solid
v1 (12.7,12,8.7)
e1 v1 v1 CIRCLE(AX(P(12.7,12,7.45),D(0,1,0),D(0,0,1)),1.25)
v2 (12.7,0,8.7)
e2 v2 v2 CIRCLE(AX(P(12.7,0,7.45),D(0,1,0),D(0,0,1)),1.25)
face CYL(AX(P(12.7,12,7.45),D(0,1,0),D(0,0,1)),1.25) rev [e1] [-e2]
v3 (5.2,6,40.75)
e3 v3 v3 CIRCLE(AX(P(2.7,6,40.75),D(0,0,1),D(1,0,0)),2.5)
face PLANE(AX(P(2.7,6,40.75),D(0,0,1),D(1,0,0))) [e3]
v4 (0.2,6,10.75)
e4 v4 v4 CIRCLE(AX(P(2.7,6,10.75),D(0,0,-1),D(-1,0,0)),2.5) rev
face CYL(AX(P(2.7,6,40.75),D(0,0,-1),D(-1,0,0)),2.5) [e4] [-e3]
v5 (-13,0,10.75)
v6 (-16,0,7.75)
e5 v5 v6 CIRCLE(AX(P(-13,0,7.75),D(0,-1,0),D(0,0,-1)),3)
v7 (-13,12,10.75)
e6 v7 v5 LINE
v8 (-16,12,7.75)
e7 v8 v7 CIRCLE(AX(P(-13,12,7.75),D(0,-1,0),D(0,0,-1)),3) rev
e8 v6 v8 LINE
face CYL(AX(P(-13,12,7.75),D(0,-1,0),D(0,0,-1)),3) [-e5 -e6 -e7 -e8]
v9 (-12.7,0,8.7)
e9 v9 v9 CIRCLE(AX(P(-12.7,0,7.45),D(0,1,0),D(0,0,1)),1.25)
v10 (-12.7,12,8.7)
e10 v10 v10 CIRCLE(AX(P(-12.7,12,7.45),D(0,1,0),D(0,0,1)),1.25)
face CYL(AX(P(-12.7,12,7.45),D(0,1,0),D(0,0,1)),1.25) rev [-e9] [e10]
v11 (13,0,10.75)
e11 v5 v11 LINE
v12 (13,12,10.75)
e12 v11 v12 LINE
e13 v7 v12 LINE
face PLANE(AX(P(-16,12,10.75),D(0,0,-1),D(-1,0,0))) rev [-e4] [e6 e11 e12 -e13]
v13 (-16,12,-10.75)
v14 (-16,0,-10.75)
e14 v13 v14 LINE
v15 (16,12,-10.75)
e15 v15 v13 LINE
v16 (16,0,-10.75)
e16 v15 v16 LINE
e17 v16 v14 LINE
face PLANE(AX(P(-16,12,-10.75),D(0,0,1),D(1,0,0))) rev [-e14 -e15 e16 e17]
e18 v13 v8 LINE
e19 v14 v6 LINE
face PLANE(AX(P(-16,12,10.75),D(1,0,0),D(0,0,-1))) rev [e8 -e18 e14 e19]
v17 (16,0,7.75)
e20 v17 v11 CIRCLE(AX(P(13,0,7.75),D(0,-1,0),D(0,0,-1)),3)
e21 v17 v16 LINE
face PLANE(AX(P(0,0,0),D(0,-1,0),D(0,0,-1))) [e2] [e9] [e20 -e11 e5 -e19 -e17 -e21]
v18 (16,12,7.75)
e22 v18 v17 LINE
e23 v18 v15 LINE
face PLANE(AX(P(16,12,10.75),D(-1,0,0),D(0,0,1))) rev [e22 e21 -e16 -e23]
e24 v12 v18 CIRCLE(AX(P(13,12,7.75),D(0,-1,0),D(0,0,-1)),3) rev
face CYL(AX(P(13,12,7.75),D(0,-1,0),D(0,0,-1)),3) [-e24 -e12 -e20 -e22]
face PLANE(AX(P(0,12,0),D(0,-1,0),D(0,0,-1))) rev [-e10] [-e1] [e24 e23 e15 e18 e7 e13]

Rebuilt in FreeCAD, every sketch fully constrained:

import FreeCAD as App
import Part
import Sketcher

V = App.Vector
Q = App.Units.Quantity


def edges_at(feature, points):
    """Names of the edges that pass closest to the given points."""
    edges = feature.Shape.Edges
    near = lambda p: min(range(len(edges)), key=lambda i: edges[i].distToShape(Part.Vertex(*p))[0])
    return sorted({f"Edge{near(p) + 1}" for p in points})


def add_polygon(sketch, points):
    """Adds a closed chain of lines whose ends are joined by coincident constraints."""
    first, n = sketch.GeometryCount, len(points)
    for a, b in zip(points, points[1:] + points[:1]):
        sketch.addGeometry(Part.LineSegment(App.Vector(*a, 0), App.Vector(*b, 0)), False)
    for i in range(n):
        sketch.addConstraint(Sketcher.Constraint("Coincident", first + i, 2, first + (i + 1) % n, 1))

doc = App.newDocument("Part")
body = doc.addObject("PartDesign::Body", "Body")

# Sketch on XZ plane
sketch1 = body.newObject("Sketcher::SketchObject", "Sketch")
sketch1.AttachmentSupport = (doc.getObject("XZ_Plane"), [""])
sketch1.MapMode = "FlatFace"
add_polygon(sketch1, [(-16, -11), (-16, 11), (16, 11), (16, -11)])  # lines 0-3
sketch1.addConstraint([
    Sketcher.Constraint("Vertical", 0),
    Sketcher.Constraint("Horizontal", 1),
    Sketcher.Constraint("Vertical", 2),
    Sketcher.Constraint("Horizontal", 3),
    Sketcher.Constraint("Symmetric", 0, 2, 2, 2, -1, 1),
    Sketcher.Constraint("DistanceX", 1, 1, 1, 2, Q("32 mm")),
    Sketcher.Constraint("DistanceY", 0, 1, 0, 2, Q("21.5 mm")),
])
pad1 = body.newObject("PartDesign::Pad", "Pad")
pad1.Profile = sketch1
pad1.Length = 12
pad1.Reversed = True

# Sketch on XZ plane
sketch2 = body.newObject("Sketcher::SketchObject", "Sketch001")
sketch2.AttachmentSupport = (doc.getObject("XZ_Plane"), [""])
sketch2.MapMode = "FlatFace"
sketch2.AttachmentOffset = App.Placement(V(0, 0, -12), App.Rotation())
sketch2.addGeometry([
    Part.Circle(V(-12.7, 7.5, 0), V(0, 0, 1), 1.2),
    Part.Circle(V(12.7, 7.5, 0), V(0, 0, 1), 1.2),
], False)
sketch2.addConstraint([
    Sketcher.Constraint("Equal", 0, 1),
    Sketcher.Constraint("Symmetric", 0, 3, 1, 3, -2),
    Sketcher.Constraint("Diameter", 0, Q("2.5 mm")),
    Sketcher.Constraint("DistanceX", 0, 3, -1, 1, Q("12.7 mm")),
    Sketcher.Constraint("DistanceY", -1, 1, 0, 3, Q("7.45 mm")),
])
doc.recompute()
hole = body.newObject("PartDesign::Hole", "Hole")
hole.Profile = sketch2
hole.ThreadType = "None"
hole.Diameter = 2.5
hole.DepthType = "ThroughAll"
hole.Reversed = True
doc.recompute()

fillet = body.newObject("PartDesign::Fillet", "Fillet")
fillet.Base = (hole, edges_at(hole, [(16, 6, 10.75), (-16, 6, 10.75)]))
fillet.Radius = 3

# Sketch on XY plane
sketch3 = body.newObject("Sketcher::SketchObject", "Sketch002")
sketch3.AttachmentSupport = (doc.getObject("XY_Plane"), [""])
sketch3.MapMode = "FlatFace"
sketch3.AttachmentOffset = App.Placement(V(0, 0, 10.75), App.Rotation())
sketch3.addGeometry(Part.Circle(V(2.7, 6, 0), V(0, 0, 1), 2.5), False)
sketch3.addConstraint([
    Sketcher.Constraint("Diameter", 0, Q("5 mm")),
    Sketcher.Constraint("DistanceY", -1, 1, 0, 3, Q("6 mm")),
    Sketcher.Constraint("DistanceX", -1, 1, 0, 3, Q("2.7 mm")),
])
pad2 = body.newObject("PartDesign::Pad", "Pad001")
pad2.Profile = sketch3
pad2.Length = 30

doc.recompute()
